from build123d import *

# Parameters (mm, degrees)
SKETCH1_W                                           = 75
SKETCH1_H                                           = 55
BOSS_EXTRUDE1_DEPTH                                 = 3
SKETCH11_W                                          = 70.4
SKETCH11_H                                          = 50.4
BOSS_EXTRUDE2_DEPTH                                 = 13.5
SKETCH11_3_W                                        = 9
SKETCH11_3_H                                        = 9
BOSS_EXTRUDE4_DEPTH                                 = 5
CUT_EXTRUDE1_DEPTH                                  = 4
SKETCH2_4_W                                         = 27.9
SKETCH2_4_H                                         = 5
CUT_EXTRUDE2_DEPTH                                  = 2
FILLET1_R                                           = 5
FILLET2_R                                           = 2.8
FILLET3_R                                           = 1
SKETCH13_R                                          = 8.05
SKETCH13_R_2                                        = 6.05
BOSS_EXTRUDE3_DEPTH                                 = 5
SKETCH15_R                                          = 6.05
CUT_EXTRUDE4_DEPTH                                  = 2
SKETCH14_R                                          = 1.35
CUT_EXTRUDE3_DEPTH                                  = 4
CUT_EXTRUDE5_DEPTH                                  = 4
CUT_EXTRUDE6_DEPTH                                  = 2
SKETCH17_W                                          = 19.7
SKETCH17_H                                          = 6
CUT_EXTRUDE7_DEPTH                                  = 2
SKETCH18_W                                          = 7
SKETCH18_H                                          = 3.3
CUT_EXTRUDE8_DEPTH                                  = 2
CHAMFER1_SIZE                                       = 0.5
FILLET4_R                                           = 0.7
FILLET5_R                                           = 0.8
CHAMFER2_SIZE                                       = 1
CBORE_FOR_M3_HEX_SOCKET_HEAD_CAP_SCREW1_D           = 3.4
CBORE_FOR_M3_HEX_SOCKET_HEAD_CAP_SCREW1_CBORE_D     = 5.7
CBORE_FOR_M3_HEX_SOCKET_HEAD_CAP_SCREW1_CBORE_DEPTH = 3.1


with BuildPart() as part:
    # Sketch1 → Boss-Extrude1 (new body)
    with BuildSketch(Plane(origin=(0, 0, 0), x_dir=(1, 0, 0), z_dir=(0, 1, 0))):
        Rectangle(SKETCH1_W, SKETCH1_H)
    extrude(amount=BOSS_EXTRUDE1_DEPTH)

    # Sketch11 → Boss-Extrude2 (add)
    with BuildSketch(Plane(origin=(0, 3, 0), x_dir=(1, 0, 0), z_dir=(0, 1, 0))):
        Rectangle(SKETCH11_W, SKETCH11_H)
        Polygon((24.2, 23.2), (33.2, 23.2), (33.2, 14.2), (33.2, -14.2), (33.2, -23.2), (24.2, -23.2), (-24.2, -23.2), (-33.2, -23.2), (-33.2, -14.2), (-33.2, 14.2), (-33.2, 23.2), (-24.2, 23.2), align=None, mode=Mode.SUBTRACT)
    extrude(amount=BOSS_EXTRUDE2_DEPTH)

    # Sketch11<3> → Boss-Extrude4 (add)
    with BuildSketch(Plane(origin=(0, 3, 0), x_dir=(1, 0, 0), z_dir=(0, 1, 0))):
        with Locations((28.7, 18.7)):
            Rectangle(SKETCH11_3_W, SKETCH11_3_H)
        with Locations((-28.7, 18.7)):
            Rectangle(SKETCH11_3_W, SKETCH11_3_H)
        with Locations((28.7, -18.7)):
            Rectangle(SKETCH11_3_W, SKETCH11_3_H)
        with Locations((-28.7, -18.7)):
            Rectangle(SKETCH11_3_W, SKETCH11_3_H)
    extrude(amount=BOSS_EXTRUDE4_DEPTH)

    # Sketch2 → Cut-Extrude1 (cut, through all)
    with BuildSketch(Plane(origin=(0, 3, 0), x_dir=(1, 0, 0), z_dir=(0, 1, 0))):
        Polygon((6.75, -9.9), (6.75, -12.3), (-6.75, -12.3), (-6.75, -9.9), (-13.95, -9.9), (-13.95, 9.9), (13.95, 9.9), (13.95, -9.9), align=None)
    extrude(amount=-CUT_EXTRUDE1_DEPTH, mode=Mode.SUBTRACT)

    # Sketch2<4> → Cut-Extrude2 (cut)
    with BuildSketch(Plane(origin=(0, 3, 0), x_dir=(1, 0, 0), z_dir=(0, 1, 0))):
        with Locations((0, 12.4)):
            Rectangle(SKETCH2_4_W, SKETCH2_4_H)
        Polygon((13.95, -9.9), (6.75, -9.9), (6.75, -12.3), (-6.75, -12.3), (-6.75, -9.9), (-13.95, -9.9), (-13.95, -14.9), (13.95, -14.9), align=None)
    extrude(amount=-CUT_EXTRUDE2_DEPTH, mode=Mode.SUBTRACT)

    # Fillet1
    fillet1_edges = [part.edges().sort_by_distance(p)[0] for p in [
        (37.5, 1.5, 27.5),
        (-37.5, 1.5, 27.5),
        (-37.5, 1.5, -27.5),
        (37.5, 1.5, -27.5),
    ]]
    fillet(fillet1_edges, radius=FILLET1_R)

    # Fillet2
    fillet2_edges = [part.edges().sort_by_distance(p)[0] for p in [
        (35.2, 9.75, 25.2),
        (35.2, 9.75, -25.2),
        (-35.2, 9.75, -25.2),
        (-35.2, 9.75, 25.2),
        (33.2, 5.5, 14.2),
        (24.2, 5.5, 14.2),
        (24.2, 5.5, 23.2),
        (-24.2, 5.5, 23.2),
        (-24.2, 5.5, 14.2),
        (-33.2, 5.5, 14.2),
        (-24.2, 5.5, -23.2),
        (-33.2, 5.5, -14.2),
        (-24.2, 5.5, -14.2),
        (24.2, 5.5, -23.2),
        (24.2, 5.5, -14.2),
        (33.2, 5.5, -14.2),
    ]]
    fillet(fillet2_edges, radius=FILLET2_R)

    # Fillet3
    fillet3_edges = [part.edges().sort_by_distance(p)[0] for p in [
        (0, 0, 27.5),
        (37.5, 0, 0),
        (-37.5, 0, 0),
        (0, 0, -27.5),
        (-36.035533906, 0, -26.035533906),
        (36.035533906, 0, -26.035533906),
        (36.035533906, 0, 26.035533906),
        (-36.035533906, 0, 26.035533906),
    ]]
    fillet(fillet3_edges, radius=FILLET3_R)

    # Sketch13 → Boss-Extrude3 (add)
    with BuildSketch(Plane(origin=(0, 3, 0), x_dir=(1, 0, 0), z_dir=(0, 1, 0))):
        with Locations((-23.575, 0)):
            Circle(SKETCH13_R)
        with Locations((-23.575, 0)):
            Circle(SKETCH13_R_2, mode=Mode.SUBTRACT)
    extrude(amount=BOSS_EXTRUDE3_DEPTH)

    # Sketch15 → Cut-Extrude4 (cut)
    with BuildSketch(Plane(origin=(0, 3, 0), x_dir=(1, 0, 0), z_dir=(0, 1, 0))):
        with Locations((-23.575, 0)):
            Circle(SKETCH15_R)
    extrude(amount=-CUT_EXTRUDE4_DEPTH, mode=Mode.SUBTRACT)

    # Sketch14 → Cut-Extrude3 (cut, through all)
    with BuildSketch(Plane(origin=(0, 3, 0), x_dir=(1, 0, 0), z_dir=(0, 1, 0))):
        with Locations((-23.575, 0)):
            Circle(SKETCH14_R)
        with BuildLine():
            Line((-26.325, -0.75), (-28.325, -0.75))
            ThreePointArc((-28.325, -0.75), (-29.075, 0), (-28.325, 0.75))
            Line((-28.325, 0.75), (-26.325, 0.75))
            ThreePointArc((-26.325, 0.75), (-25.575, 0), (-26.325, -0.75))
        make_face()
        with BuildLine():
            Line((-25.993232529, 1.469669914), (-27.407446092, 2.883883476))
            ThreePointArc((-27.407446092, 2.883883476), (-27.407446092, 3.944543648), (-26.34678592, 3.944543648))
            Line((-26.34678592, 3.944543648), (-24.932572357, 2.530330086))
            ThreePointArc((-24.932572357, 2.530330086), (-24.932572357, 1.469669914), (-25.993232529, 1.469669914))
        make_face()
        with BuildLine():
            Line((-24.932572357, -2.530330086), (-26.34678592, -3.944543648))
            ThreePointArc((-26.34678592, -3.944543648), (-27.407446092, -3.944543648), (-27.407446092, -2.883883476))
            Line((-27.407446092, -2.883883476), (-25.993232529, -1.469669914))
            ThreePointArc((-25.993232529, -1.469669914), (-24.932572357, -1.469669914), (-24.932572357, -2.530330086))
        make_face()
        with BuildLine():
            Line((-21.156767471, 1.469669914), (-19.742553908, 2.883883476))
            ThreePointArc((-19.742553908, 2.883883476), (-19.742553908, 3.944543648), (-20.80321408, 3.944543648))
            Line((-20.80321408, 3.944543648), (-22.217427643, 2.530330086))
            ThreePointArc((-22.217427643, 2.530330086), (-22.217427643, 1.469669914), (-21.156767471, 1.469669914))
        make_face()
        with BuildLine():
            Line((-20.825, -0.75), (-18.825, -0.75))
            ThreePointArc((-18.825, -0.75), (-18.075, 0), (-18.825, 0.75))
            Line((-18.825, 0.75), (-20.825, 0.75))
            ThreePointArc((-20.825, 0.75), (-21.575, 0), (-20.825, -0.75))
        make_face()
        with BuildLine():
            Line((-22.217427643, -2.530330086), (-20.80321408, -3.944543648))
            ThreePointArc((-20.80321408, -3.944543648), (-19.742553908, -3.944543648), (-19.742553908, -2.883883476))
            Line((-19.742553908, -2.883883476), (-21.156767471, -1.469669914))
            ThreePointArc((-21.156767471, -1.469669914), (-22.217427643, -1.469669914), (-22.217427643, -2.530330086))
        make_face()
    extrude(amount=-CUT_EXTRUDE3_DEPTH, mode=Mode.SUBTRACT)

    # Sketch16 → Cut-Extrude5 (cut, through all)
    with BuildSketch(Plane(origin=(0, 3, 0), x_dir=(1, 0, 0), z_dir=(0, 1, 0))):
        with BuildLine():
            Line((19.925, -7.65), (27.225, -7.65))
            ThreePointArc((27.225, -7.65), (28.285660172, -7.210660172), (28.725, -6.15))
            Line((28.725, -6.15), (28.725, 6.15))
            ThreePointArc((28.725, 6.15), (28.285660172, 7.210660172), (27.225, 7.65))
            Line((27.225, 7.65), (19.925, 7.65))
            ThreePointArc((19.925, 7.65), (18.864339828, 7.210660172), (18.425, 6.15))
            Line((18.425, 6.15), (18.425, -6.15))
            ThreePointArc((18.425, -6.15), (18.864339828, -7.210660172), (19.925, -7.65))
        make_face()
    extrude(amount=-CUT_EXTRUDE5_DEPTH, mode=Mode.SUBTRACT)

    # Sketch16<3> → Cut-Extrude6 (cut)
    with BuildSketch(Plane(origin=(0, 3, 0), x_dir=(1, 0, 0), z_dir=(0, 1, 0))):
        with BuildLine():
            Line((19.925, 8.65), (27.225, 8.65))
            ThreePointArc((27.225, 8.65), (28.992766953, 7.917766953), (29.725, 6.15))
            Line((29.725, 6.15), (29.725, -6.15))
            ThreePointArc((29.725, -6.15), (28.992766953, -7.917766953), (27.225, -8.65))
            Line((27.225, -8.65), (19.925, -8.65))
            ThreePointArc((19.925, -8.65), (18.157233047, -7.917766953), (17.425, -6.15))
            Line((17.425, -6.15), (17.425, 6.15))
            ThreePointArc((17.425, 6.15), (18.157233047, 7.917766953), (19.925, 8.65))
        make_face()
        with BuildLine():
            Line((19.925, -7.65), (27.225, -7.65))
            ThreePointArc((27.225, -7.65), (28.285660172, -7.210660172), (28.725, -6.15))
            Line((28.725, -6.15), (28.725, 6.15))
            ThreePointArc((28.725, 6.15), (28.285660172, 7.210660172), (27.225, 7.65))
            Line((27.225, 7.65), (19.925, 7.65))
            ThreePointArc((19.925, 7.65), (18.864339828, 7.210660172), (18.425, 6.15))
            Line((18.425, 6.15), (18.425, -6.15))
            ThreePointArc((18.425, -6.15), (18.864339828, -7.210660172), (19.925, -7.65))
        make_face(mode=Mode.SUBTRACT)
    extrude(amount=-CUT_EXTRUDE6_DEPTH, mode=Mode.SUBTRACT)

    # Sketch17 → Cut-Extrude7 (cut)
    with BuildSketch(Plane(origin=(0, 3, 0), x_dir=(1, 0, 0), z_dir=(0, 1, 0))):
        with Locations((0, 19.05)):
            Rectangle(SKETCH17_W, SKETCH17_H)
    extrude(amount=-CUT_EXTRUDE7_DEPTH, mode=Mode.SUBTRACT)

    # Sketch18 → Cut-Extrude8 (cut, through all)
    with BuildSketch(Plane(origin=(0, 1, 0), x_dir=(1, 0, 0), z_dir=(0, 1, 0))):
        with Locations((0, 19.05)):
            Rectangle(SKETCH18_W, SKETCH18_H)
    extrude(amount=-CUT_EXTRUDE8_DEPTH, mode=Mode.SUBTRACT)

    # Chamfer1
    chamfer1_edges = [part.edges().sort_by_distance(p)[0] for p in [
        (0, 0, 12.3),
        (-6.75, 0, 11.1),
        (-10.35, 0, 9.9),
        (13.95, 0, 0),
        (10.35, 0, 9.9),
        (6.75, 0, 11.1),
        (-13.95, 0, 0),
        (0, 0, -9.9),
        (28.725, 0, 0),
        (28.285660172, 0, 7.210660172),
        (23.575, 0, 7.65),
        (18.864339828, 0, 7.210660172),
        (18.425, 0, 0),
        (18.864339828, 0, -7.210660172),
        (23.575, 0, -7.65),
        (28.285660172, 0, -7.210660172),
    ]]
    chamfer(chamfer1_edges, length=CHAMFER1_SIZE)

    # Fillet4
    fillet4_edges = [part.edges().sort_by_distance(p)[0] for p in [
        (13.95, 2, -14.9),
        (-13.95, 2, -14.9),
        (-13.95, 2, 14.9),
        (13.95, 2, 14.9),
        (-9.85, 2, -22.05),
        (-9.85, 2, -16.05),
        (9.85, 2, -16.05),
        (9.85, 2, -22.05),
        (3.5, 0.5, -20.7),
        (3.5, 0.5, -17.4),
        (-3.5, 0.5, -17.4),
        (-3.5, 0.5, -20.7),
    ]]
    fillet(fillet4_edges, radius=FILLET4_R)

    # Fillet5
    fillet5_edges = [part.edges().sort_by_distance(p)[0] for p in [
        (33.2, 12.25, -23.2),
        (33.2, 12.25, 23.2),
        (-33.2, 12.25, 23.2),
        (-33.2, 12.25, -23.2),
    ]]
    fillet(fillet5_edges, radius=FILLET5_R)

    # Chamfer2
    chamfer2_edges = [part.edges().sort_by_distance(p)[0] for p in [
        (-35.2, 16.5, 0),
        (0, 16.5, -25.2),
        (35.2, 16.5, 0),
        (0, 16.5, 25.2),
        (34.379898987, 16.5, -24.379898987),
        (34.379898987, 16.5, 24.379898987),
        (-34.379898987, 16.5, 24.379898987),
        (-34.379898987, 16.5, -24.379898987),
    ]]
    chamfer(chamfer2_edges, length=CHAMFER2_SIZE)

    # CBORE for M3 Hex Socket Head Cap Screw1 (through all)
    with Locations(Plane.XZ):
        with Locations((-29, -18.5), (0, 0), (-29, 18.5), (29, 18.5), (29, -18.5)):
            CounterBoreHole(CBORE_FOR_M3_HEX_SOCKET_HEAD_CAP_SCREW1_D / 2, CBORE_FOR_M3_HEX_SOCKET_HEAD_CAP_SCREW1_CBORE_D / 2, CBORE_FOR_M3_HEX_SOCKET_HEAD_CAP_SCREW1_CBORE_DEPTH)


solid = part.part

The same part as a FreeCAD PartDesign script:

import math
import FreeCAD as App
import Part
import Sketcher
from FreeCAD import Vector


def edges_at(feature, points):
    """Names of the edges that pass closest to the given points."""
    edges = feature.Shape.Edges
    near = lambda p: min(range(len(edges)), key=lambda i: edges[i].distToShape(Part.Vertex(*p))[0])
    return sorted({f"Edge{near(p) + 1}" for p in points})

doc = App.newDocument("Part")
body = doc.addObject("PartDesign::Body", "Body")

# Sketch on XZ plane
sketch1 = body.newObject("Sketcher::SketchObject", "Sketch")
sketch1.AttachmentSupport = (doc.getObject("XZ_Plane"), [""])
sketch1.MapMode = "FlatFace"
sketch1.addGeometry([
    Part.LineSegment(Vector(-38, -28, 0), Vector(-38, 28, 0)),
    Part.LineSegment(Vector(-38, 28, 0), Vector(38, 28, 0)),
    Part.LineSegment(Vector(38, 28, 0), Vector(38, -28, 0)),
    Part.LineSegment(Vector(38, -28, 0), Vector(-38, -28, 0)),
], False)
sketch1.addConstraint([
    Sketcher.Constraint("Coincident", 0, 2, 1, 1),
    Sketcher.Constraint("Coincident", 1, 2, 2, 1),
    Sketcher.Constraint("Coincident", 2, 2, 3, 1),
    Sketcher.Constraint("Coincident", 3, 2, 0, 1),
    Sketcher.Constraint("Vertical", 0),
    Sketcher.Constraint("Horizontal", 1),
    Sketcher.Constraint("Vertical", 2),
    Sketcher.Constraint("Horizontal", 3),
    Sketcher.Constraint("Symmetric", 0, 2, 2, 2, -1, 1),
    Sketcher.Constraint("DistanceX", 1, 1, 1, 2, 75.0),
    Sketcher.Constraint("DistanceY", 0, 1, 0, 2, 55.0),
])
pad1 = body.newObject("PartDesign::Pad", "Pad")
pad1.Profile = sketch1
pad1.Length = 3
pad1.Reversed = True

# Sketch on XZ plane
sketch2 = body.newObject("Sketcher::SketchObject", "Sketch001")
sketch2.AttachmentSupport = (doc.getObject("XZ_Plane"), [""])
sketch2.MapMode = "FlatFace"
sketch2.AttachmentOffset = App.Placement(Vector(0, 0, -3), App.Rotation())
sketch2.addGeometry([
    Part.LineSegment(Vector(-35, -25, 0), Vector(-35, 25, 0)),  # 0
    Part.LineSegment(Vector(-35, 25, 0), Vector(35, 25, 0)),  # 1
    Part.LineSegment(Vector(35, 25, 0), Vector(35, -25, 0)),  # 2
    Part.LineSegment(Vector(35, -25, 0), Vector(-35, -25, 0)),  # 3
    Part.LineSegment(Vector(-33, -23, 0), Vector(33, -23, 0)),  # 4
    Part.LineSegment(Vector(33, -23, 0), Vector(33, 23, 0)),  # 5
    Part.LineSegment(Vector(33, 23, 0), Vector(-33, 23, 0)),  # 6
    Part.LineSegment(Vector(-33, 23, 0), Vector(-33, -23, 0)),  # 7
], False)
sketch2.addConstraint([
    Sketcher.Constraint("Coincident", 0, 2, 1, 1),
    Sketcher.Constraint("Coincident", 1, 2, 2, 1),
    Sketcher.Constraint("Coincident", 2, 2, 3, 1),
    Sketcher.Constraint("Coincident", 3, 2, 0, 1),
    Sketcher.Constraint("Coincident", 4, 2, 5, 1),
    Sketcher.Constraint("Coincident", 5, 2, 6, 1),
    Sketcher.Constraint("Coincident", 6, 2, 7, 1),
    Sketcher.Constraint("Coincident", 7, 2, 4, 1),
    Sketcher.Constraint("Vertical", 0),
    Sketcher.Constraint("Horizontal", 1),
    Sketcher.Constraint("Vertical", 2),
    Sketcher.Constraint("Horizontal", 3),
    Sketcher.Constraint("Horizontal", 4),
    Sketcher.Constraint("Vertical", 5),
    Sketcher.Constraint("Horizontal", 6),
    Sketcher.Constraint("Vertical", 7),
    Sketcher.Constraint("Symmetric", 0, 2, 2, 2, -1, 1),
    Sketcher.Constraint("Symmetric", 4, 2, 6, 2, -1, 1),
    Sketcher.Constraint("DistanceX", 1, 1, 1, 2, 70.4),
    Sketcher.Constraint("DistanceX", 4, 1, 4, 2, 66.4),
    Sketcher.Constraint("DistanceY", 0, 1, 0, 2, 50.4),
    Sketcher.Constraint("DistanceY", 5, 1, 5, 2, 46.4),
])
pad2 = body.newObject("PartDesign::Pad", "Pad001")
pad2.Profile = sketch2
pad2.Length = 13.5
pad2.Reversed = True

# Sketch on XZ plane
sketch3 = body.newObject("Sketcher::SketchObject", "Sketch002")
sketch3.AttachmentSupport = (doc.getObject("XZ_Plane"), [""])
sketch3.MapMode = "FlatFace"
sketch3.AttachmentOffset = App.Placement(Vector(0, 0, -3), App.Rotation())
sketch3.addGeometry([
    Part.LineSegment(Vector(24, -23, 0), Vector(24, -14, 0)),  # 0
    Part.LineSegment(Vector(24, -14, 0), Vector(33, -14, 0)),  # 1
    Part.LineSegment(Vector(33, -14, 0), Vector(33, -23, 0)),  # 2
    Part.LineSegment(Vector(33, -23, 0), Vector(24, -23, 0)),  # 3
    Part.LineSegment(Vector(-33, -23, 0), Vector(-33, -14, 0)),  # 4
    Part.LineSegment(Vector(-33, -14, 0), Vector(-24, -14, 0)),  # 5
    Part.LineSegment(Vector(-24, -14, 0), Vector(-24, -23, 0)),  # 6
    Part.LineSegment(Vector(-24, -23, 0), Vector(-33, -23, 0)),  # 7
    Part.LineSegment(Vector(24, 14, 0), Vector(24, 23, 0)),  # 8
    Part.LineSegment(Vector(24, 23, 0), Vector(33, 23, 0)),  # 9
    Part.LineSegment(Vector(33, 23, 0), Vector(33, 14, 0)),  # 10
    Part.LineSegment(Vector(33, 14, 0), Vector(24, 14, 0)),  # 11
    Part.LineSegment(Vector(-33, 14, 0), Vector(-33, 23, 0)),  # 12
    Part.LineSegment(Vector(-33, 23, 0), Vector(-24, 23, 0)),  # 13
    Part.LineSegment(Vector(-24, 23, 0), Vector(-24, 14, 0)),  # 14
    Part.LineSegment(Vector(-24, 14, 0), Vector(-33, 14, 0)),  # 15
], False)
sketch3.addConstraint([
    Sketcher.Constraint("Coincident", 0, 2, 1, 1),
    Sketcher.Constraint("Coincident", 1, 2, 2, 1),
    Sketcher.Constraint("Coincident", 2, 2, 3, 1),
    Sketcher.Constraint("Coincident", 3, 2, 0, 1),
    Sketcher.Constraint("Coincident", 4, 2, 5, 1),
    Sketcher.Constraint("Coincident", 5, 2, 6, 1),
    Sketcher.Constraint("Coincident", 6, 2, 7, 1),
    Sketcher.Constraint("Coincident", 7, 2, 4, 1),
    Sketcher.Constraint("Coincident", 8, 2, 9, 1),
    Sketcher.Constraint("Coincident", 9, 2, 10, 1),
    Sketcher.Constraint("Coincident", 10, 2, 11, 1),
    Sketcher.Constraint("Coincident", 11, 2, 8, 1),
    Sketcher.Constraint("Coincident", 12, 2, 13, 1),
    Sketcher.Constraint("Coincident", 13, 2, 14, 1),
    Sketcher.Constraint("Coincident", 14, 2, 15, 1),
    Sketcher.Constraint("Coincident", 15, 2, 12, 1),
    Sketcher.Constraint("Vertical", 0),
    Sketcher.Constraint("Horizontal", 1),
    Sketcher.Constraint("Vertical", 2),
    Sketcher.Constraint("Horizontal", 3),
    Sketcher.Constraint("Vertical", 4),
    Sketcher.Constraint("Horizontal", 5),
    Sketcher.Constraint("Vertical", 6),
    Sketcher.Constraint("Horizontal", 7),
    Sketcher.Constraint("Vertical", 8),
    Sketcher.Constraint("Horizontal", 9),
    Sketcher.Constraint("Vertical", 10),
    Sketcher.Constraint("Horizontal", 11),
    Sketcher.Constraint("Vertical", 12),
    Sketcher.Constraint("Horizontal", 13),
    Sketcher.Constraint("Vertical", 14),
    Sketcher.Constraint("Horizontal", 15),
    Sketcher.Constraint("Symmetric", 6, 2, 8, 2, -1, 1),
    Sketcher.Constraint("Symmetric", 4, 2, 10, 2, -1, 1),
    Sketcher.Constraint("Symmetric", 2, 2, 12, 2, -1, 1),
    Sketcher.Constraint("Symmetric", 0, 2, 14, 2, -1, 1),
    Sketcher.Constraint("Symmetric", 1, 2, 4, 2, -2),
    Sketcher.Constraint("Symmetric", 3, 2, 6, 2, -2),
    Sketcher.Constraint("Equal", 15, 0),
    Sketcher.Constraint("DistanceX", 1, 1, 1, 2, 9.0),
    Sketcher.Constraint("DistanceX", -1, 1, 0, 2, 24.2),
    Sketcher.Constraint("DistanceY", 0, 2, -1, 1, 14.2),
])
pad3 = body.newObject("PartDesign::Pad", "Pad002")
pad3.Profile = sketch3
pad3.Length = 5
pad3.Reversed = True

# Sketch on XZ plane
sketch4 = body.newObject("Sketcher::SketchObject", "Sketch003")
sketch4.AttachmentSupport = (doc.getObject("XZ_Plane"), [""])
sketch4.MapMode = "FlatFace"
sketch4.AttachmentOffset = App.Placement(Vector(0, 0, -3), App.Rotation())
sketch4.addGeometry([
    Part.LineSegment(Vector(6.8, 12.3, 0), Vector(6.8, 9.9, 0)),  # 0
    Part.LineSegment(Vector(6.8, 9.9, 0), Vector(13.9, 9.9, 0)),  # 1
    Part.LineSegment(Vector(13.9, 9.9, 0), Vector(13.9, -9.9, 0)),  # 2
    Part.LineSegment(Vector(13.9, -9.9, 0), Vector(-13.9, -9.9, 0)),  # 3
    Part.LineSegment(Vector(-13.9, -9.9, 0), Vector(-13.9, 9.9, 0)),  # 4
    Part.LineSegment(Vector(-13.9, 9.9, 0), Vector(-6.8, 9.9, 0)),  # 5
    Part.LineSegment(Vector(-6.8, 9.9, 0), Vector(-6.8, 12.3, 0)),  # 6
    Part.LineSegment(Vector(-6.8, 12.3, 0), Vector(6.8, 12.3, 0)),  # 7
], False)
sketch4.addConstraint([
    Sketcher.Constraint("Coincident", 0, 2, 1, 1),
    Sketcher.Constraint("Coincident", 1, 2, 2, 1),
    Sketcher.Constraint("Coincident", 2, 2, 3, 1),
    Sketcher.Constraint("Coincident", 3, 2, 4, 1),
    Sketcher.Constraint("Coincident", 4, 2, 5, 1),
    Sketcher.Constraint("Coincident", 5, 2, 6, 1),
    Sketcher.Constraint("Coincident", 6, 2, 7, 1),
    Sketcher.Constraint("Coincident", 7, 2, 0, 1),
    Sketcher.Constraint("Vertical", 0),
    Sketcher.Constraint("Horizontal", 1),
    Sketcher.Constraint("Vertical", 2),
    Sketcher.Constraint("Horizontal", 3),
    Sketcher.Constraint("Vertical", 4),
    Sketcher.Constraint("Horizontal", 5),
    Sketcher.Constraint("Vertical", 6),
    Sketcher.Constraint("Horizontal", 7),
    Sketcher.Constraint("Symmetric", 1, 2, 3, 2, -1, 1),
    Sketcher.Constraint("Symmetric", 0, 2, 5, 2, -2),
    Sketcher.Constraint("DistanceX", 1, 1, 1, 2, 7.2),
    Sketcher.Constraint("DistanceX", 3, 2, 3, 1, 27.9),
    Sketcher.Constraint("DistanceY", 0, 2, 0, 1, 2.4),
    Sketcher.Constraint("DistanceY", 2, 2, 2, 1, 19.8),
])
pocket1 = body.newObject("PartDesign::Pocket", "Pocket")
pocket1.Profile = sketch4
pocket1.Type = "ThroughAll"
pocket1.Reversed = True

# Sketch on XZ plane
sketch5 = body.newObject("Sketcher::SketchObject", "Sketch004")
sketch5.AttachmentSupport = (doc.getObject("XZ_Plane"), [""])
sketch5.MapMode = "FlatFace"
sketch5.AttachmentOffset = App.Placement(Vector(0, 0, -3), App.Rotation())
sketch5.addGeometry([
    Part.LineSegment(Vector(-13.9, -14.9, 0), Vector(-13.9, -9.9, 0)),  # 0
    Part.LineSegment(Vector(-13.9, -9.9, 0), Vector(13.9, -9.9, 0)),  # 1
    Part.LineSegment(Vector(13.9, -9.9, 0), Vector(13.9, -14.9, 0)),  # 2
    Part.LineSegment(Vector(13.9, -14.9, 0), Vector(-13.9, -14.9, 0)),  # 3
    Part.LineSegment(Vector(13.9, 9.9, 0), Vector(6.8, 9.9, 0)),  # 4
    Part.LineSegment(Vector(6.8, 9.9, 0), Vector(6.8, 12.3, 0)),  # 5
    Part.LineSegment(Vector(6.8, 12.3, 0), Vector(-6.8, 12.3, 0)),  # 6
    Part.LineSegment(Vector(-6.8, 12.3, 0), Vector(-6.8, 9.9, 0)),  # 7
    Part.LineSegment(Vector(-6.8, 9.9, 0), Vector(-13.9, 9.9, 0)),  # 8
    Part.LineSegment(Vector(-13.9, 9.9, 0), Vector(-13.9, 14.9, 0)),  # 9
    Part.LineSegment(Vector(-13.9, 14.9, 0), Vector(13.9, 14.9, 0)),  # 10
    Part.LineSegment(Vector(13.9, 14.9, 0), Vector(13.9, 9.9, 0)),  # 11
], False)
sketch5.addConstraint([
    Sketcher.Constraint("Coincident", 0, 2, 1, 1),
    Sketcher.Constraint("Coincident", 1, 2, 2, 1),
    Sketcher.Constraint("Coincident", 2, 2, 3, 1),
    Sketcher.Constraint("Coincident", 3, 2, 0, 1),
    Sketcher.Constraint("Coincident", 4, 2, 5, 1),
    Sketcher.Constraint("Coincident", 5, 2, 6, 1),
    Sketcher.Constraint("Coincident", 6, 2, 7, 1),
    Sketcher.Constraint("Coincident", 7, 2, 8, 1),
    Sketcher.Constraint("Coincident", 8, 2, 9, 1),
    Sketcher.Constraint("Coincident", 9, 2, 10, 1),
    Sketcher.Constraint("Coincident", 10, 2, 11, 1),
    Sketcher.Constraint("Coincident", 11, 2, 4, 1),
    Sketcher.Constraint("Vertical", 0),
    Sketcher.Constraint("Horizontal", 1),
    Sketcher.Constraint("Vertical", 2),
    Sketcher.Constraint("Horizontal", 3),
    Sketcher.Constraint("Horizontal", 4),
    Sketcher.Constraint("Vertical", 5),
    Sketcher.Constraint("Horizontal", 6),
    Sketcher.Constraint("Vertical", 7),
    Sketcher.Constraint("Horizontal", 8),
    Sketcher.Constraint("Vertical", 9),
    Sketcher.Constraint("Horizontal", 10),
    Sketcher.Constraint("Vertical", 11),
    Sketcher.Constraint("Symmetric", 1, 2, 8, 2, -1, 1),
    Sketcher.Constraint("Symmetric", 3, 2, 10, 2, -1, 1),
    Sketcher.Constraint("Symmetric", 4, 2, 7, 2, -2),
    Sketcher.Constraint("Vertical", 3, 2, 8, 2),
    Sketcher.Constraint("DistanceY", 0, 1, 0, 2, 5.0),
    Sketcher.Constraint("DistanceX", 1, 1, 1, 2, 27.9),
    Sketcher.Constraint("DistanceX", 4, 2, 4, 1, 7.2),
    Sketcher.Constraint("DistanceY", 5, 1, 5, 2, 2.4),
    Sketcher.Constraint("DistanceY", 0, 2, -1, 1, 9.9),
])
pocket2 = body.newObject("PartDesign::Pocket", "Pocket001")
pocket2.Profile = sketch5
pocket2.Length = 2
pocket2.Reversed = True
doc.recompute()

fillet = body.newObject("PartDesign::Fillet", "Fillet")
fillet.Base = (pocket2, edges_at(pocket2, [
    (37.5, 1.5, 27.5),
    (-37.5, 1.5, 27.5),
    (-37.5, 1.5, -27.5),
    (37.5, 1.5, -27.5),
]))
fillet.Radius = 5
doc.recompute()

fillet2 = body.newObject("PartDesign::Fillet", "Fillet001")
fillet2.Base = (fillet, edges_at(fillet, [
    (35.2, 9.75, 25.2),
    (35.2, 9.75, -25.2),
    (-35.2, 9.75, -25.2),
    (-35.2, 9.75, 25.2),
    (33.2, 5.5, 14.2),
    (24.2, 5.5, 14.2),
    (24.2, 5.5, 23.2),
    (-24.2, 5.5, 23.2),
    (-24.2, 5.5, 14.2),
    (-33.2, 5.5, 14.2),
    (-24.2, 5.5, -23.2),
    (-33.2, 5.5, -14.2),
    (-24.2, 5.5, -14.2),
    (24.2, 5.5, -23.2),
    (24.2, 5.5, -14.2),
    (33.2, 5.5, -14.2),
]))
fillet2.Radius = 2.8
doc.recompute()

fillet3 = body.newObject("PartDesign::Fillet", "Fillet002")
fillet3.Base = (fillet2, edges_at(fillet2, [
    (0, 0, 27.5),
    (37.5, 0, 0),
    (-37.5, 0, 0),
    (0, 0, -27.5),
    (-36.036, 0, -26.036),
    (36.036, 0, -26.036),
    (36.036, 0, 26.036),
    (-36.036, 0, 26.036),
]))
fillet3.Radius = 1

# Sketch on XZ plane
sketch6 = body.newObject("Sketcher::SketchObject", "Sketch005")
sketch6.AttachmentSupport = (doc.getObject("XZ_Plane"), [""])
sketch6.MapMode = "FlatFace"
sketch6.AttachmentOffset = App.Placement(Vector(0, 0, -3), App.Rotation())
sketch6.addGeometry([
    Part.Circle(Vector(-24, 0, 0), Vector(0, 0, 1), 8),
    Part.Circle(Vector(-24, 0, 0), Vector(0, 0, 1), 6),
], False)
sketch6.addConstraint([
    Sketcher.Constraint("Coincident", 1, 3, 0, 3),
    Sketcher.Constraint("PointOnObject", 0, 3, -1),
    Sketcher.Constraint("Diameter", 0, 16.1),
    Sketcher.Constraint("Diameter", 1, 12.1),
    Sketcher.Constraint("DistanceX", 0, 3, -1, 1, 23.575),
])
pad4 = body.newObject("PartDesign::Pad", "Pad003")
pad4.Profile = sketch6
pad4.Length = 5
pad4.Reversed = True

# Sketch on XZ plane
sketch7 = body.newObject("Sketcher::SketchObject", "Sketch006")
sketch7.AttachmentSupport = (doc.getObject("XZ_Plane"), [""])
sketch7.MapMode = "FlatFace"
sketch7.AttachmentOffset = App.Placement(Vector(0, 0, -3), App.Rotation())
sketch7.addGeometry(Part.Circle(Vector(-24, 0, 0), Vector(0, 0, 1), 6), False)
sketch7.addConstraint([
    Sketcher.Constraint("PointOnObject", 0, 3, -1),
    Sketcher.Constraint("Diameter", 0, 12.1),
    Sketcher.Constraint("DistanceX", 0, 3, -1, 1, 23.575),
])
pocket3 = body.newObject("PartDesign::Pocket", "Pocket002")
pocket3.Profile = sketch7
pocket3.Length = 2
pocket3.Reversed = True

# Sketch on XZ plane
sketch8 = body.newObject("Sketcher::SketchObject", "Sketch007")
sketch8.AttachmentSupport = (doc.getObject("XZ_Plane"), [""])
sketch8.MapMode = "FlatFace"
sketch8.AttachmentOffset = App.Placement(Vector(0, 0, -3), App.Rotation())
sketch8.addGeometry([
    Part.Circle(Vector(-23.6, 0, 0), Vector(0, 0, 1), 1.4),  # 0
    Part.LineSegment(Vector(-28.3, 0.8, 0), Vector(-26.3, 0.8, 0)),  # 1
    Part.ArcOfCircle(Part.Circle(Vector(-26.3, 0, 0), Vector(0, 0, 1), 0.8), math.radians(-90), math.radians(90)),  # 2
    Part.LineSegment(Vector(-26.3, -0.8, 0), Vector(-28.3, -0.8, 0)),  # 3
    Part.ArcOfCircle(Part.Circle(Vector(-28.3, 0, 0), Vector(0, 0, 1), 0.8), math.radians(90), math.radians(270)),  # 4
    Part.LineSegment(Vector(-27.4, -2.9, 0), Vector(-26, -1.5, 0)),  # 5
    Part.ArcOfCircle(Part.Circle(Vector(-25.5, -2, 0), Vector(0, 0, 1), 0.8), math.radians(-45), math.radians(135)),  # 6
    Part.LineSegment(Vector(-24.9, -2.5, 0), Vector(-26.3, -3.9, 0)),  # 7
    Part.ArcOfCircle(Part.Circle(Vector(-26.9, -3.4, 0), Vector(0, 0, 1), 0.8), math.radians(135), math.radians(315)),  # 8
    Part.LineSegment(Vector(-26.3, 3.9, 0), Vector(-24.9, 2.5, 0)),  # 9
    Part.ArcOfCircle(Part.Circle(Vector(-25.5, 2, 0), Vector(0, 0, 1), 0.8), math.radians(-135), math.radians(45)),  # 10
    Part.LineSegment(Vector(-26, 1.5, 0), Vector(-27.4, 2.9, 0)),  # 11
    Part.ArcOfCircle(Part.Circle(Vector(-26.9, 3.4, 0), Vector(0, 0, 1), 0.8), math.radians(45), math.radians(225)),  # 12
    Part.LineSegment(Vector(-21.2, -1.5, 0), Vector(-19.7, -2.9, 0)),  # 13
    Part.ArcOfCircle(Part.Circle(Vector(-20.3, -3.4, 0), Vector(0, 0, 1), 0.8), math.radians(-135), math.radians(45)),  # 14
    Part.LineSegment(Vector(-20.8, -3.9, 0), Vector(-22.2, -2.5, 0)),  # 15
    Part.ArcOfCircle(Part.Circle(Vector(-21.7, -2, 0), Vector(0, 0, 1), 0.8), math.radians(45), math.radians(225)),  # 16
    Part.LineSegment(Vector(-20.8, 0.8, 0), Vector(-18.8, 0.8, 0)),  # 17
    Part.ArcOfCircle(Part.Circle(Vector(-18.8, 0, 0), Vector(0, 0, 1), 0.8), math.radians(-90), math.radians(90)),  # 18
    Part.LineSegment(Vector(-18.8, -0.8, 0), Vector(-20.8, -0.8, 0)),  # 19
    Part.ArcOfCircle(Part.Circle(Vector(-20.8, 0, 0), Vector(0, 0, 1), 0.8), math.radians(90), math.radians(270)),  # 20
    Part.LineSegment(Vector(-22.2, 2.5, 0), Vector(-20.8, 3.9, 0)),  # 21
    Part.ArcOfCircle(Part.Circle(Vector(-20.3, 3.4, 0), Vector(0, 0, 1), 0.8), math.radians(-45), math.radians(135)),  # 22
    Part.LineSegment(Vector(-19.7, 2.9, 0), Vector(-21.2, 1.5, 0)),  # 23
    Part.ArcOfCircle(Part.Circle(Vector(-21.7, 2, 0), Vector(0, 0, 1), 0.8), math.radians(135), math.radians(315)),  # 24
], False)
sketch8.addConstraint([
    Sketcher.Constraint("Tangent", 1, 2, 2, 2),
    Sketcher.Constraint("Tangent", 2, 1, 3, 1),
    Sketcher.Constraint("Tangent", 3, 2, 4, 2),
    Sketcher.Constraint("Tangent", 4, 1, 1, 1),
    Sketcher.Constraint("Tangent", 5, 2, 6, 2),
    Sketcher.Constraint("Tangent", 6, 1, 7, 1),
    Sketcher.Constraint("Tangent", 7, 2, 8, 2),
    Sketcher.Constraint("Tangent", 8, 1, 5, 1),
    Sketcher.Constraint("Tangent", 9, 2, 10, 2),
    Sketcher.Constraint("Tangent", 10, 1, 11, 1),
    Sketcher.Constraint("Tangent", 11, 2, 12, 2),
    Sketcher.Constraint("Tangent", 12, 1, 9, 1),
    Sketcher.Constraint("Tangent", 13, 2, 14, 2),
    Sketcher.Constraint("Tangent", 14, 1, 15, 1),
    Sketcher.Constraint("Tangent", 15, 2, 16, 2),
    Sketcher.Constraint("Tangent", 16, 1, 13, 1),
    Sketcher.Constraint("Tangent", 17, 2, 18, 2),
    Sketcher.Constraint("Tangent", 18, 1, 19, 1),
    Sketcher.Constraint("Tangent", 19, 2, 20, 2),
    Sketcher.Constraint("Tangent", 20, 1, 17, 1),
    Sketcher.Constraint("Tangent", 21, 2, 22, 2),
    Sketcher.Constraint("Tangent", 22, 1, 23, 1),
    Sketcher.Constraint("Tangent", 23, 2, 24, 2),
    Sketcher.Constraint("Tangent", 24, 1, 21, 1),
    Sketcher.Constraint("Horizontal", 1),
    Sketcher.Constraint("Horizontal", 3),
    Sketcher.Constraint("Horizontal", 17),
    Sketcher.Constraint("Horizontal", 19),
    Sketcher.Constraint("Equal", 4, 6),
    Sketcher.Constraint("Equal", 6, 8),
    Sketcher.Constraint("Equal", 8, 10),
    Sketcher.Constraint("Equal", 10, 12),
    Sketcher.Constraint("Equal", 12, 14),
    Sketcher.Constraint("Equal", 14, 16),
    Sketcher.Constraint("Equal", 16, 18),
    Sketcher.Constraint("Equal", 20, 22),
    Sketcher.Constraint("Equal", 22, 24),
    Sketcher.Constraint("Symmetric", 6, 3, 10, 3, -1),
    Sketcher.Constraint("Symmetric", 8, 3, 12, 3, -1),
    Sketcher.Constraint("Symmetric", 14, 3, 22, 3, -1),
    Sketcher.Constraint("Symmetric", 16, 3, 24, 3, -1),
    Sketcher.Constraint("PointOnObject", 0, 3, -1),
    Sketcher.Constraint("PointOnObject", 2, 3, -1),
    Sketcher.Constraint("PointOnObject", 18, 3, -1),
    Sketcher.Constraint("Perpendicular", 7, 9),
    Sketcher.Constraint("Parallel", 11, 13),
    Sketcher.Constraint("Horizontal", 8, 3, 14, 3),
    Sketcher.Constraint("Horizontal", 6, 3, 16, 3),
    Sketcher.Constraint("Equal", 3, 17),
    Sketcher.Constraint("Diameter", 0, 2.7),
    Sketcher.Constraint("DistanceX", 1, 1, 1, 2, 2.0),
    Sketcher.Constraint("Radius", 2, 0.75),
    Sketcher.Constraint("Distance", 5, 2.0),
    Sketcher.Constraint("DistanceY", 6, 3, -1, 1, 2.0),
    Sketcher.Constraint("DistanceX", 2, 3, 0, 3, 2.75),
    Sketcher.Constraint("DistanceX", 0, 3, 18, 3, 4.75),
    Sketcher.Constraint("DistanceX", 0, 3, -1, 1, 23.575),
    Sketcher.Constraint("DistanceX", 6, 3, 14, 3, 5.190018),
    Sketcher.Constraint("DistanceX", 6, 3, -1, 1, 25.462902),
])
pocket4 = body.newObject("PartDesign::Pocket", "Pocket003")
pocket4.Profile = sketch8
pocket4.Type = "ThroughAll"
pocket4.Reversed = True

# Sketch on XZ plane
sketch9 = body.newObject("Sketcher::SketchObject", "Sketch008")
sketch9.AttachmentSupport = (doc.getObject("XZ_Plane"), [""])
sketch9.MapMode = "FlatFace"
sketch9.AttachmentOffset = App.Placement(Vector(0, 0, -3), App.Rotation())
sketch9.addGeometry([
    Part.LineSegment(Vector(19.9, 7.7, 0), Vector(27.2, 7.7, 0)),  # 0
    Part.ArcOfCircle(Part.Circle(Vector(27.2, 6.2, 0), Vector(0, 0, 1), 1.5), math.radians(0), math.radians(90)),  # 1
    Part.LineSegment(Vector(28.7, 6.2, 0), Vector(28.7, -6.2, 0)),  # 2
    Part.ArcOfCircle(Part.Circle(Vector(27.2, -6.2, 0), Vector(0, 0, 1), 1.5), math.radians(-90), math.radians(0)),  # 3
    Part.LineSegment(Vector(27.2, -7.7, 0), Vector(19.9, -7.7, 0)),  # 4
    Part.ArcOfCircle(Part.Circle(Vector(19.9, -6.2, 0), Vector(0, 0, 1), 1.5), math.radians(180), math.radians(270)),  # 5
    Part.LineSegment(Vector(18.4, -6.2, 0), Vector(18.4, 6.2, 0)),  # 6
    Part.ArcOfCircle(Part.Circle(Vector(19.9, 6.2, 0), Vector(0, 0, 1), 1.5), math.radians(90), math.radians(180)),  # 7
], False)
sketch9.addConstraint([
    Sketcher.Constraint("Tangent", 0, 2, 1, 2),
    Sketcher.Constraint("Tangent", 1, 1, 2, 1),
    Sketcher.Constraint("Tangent", 2, 2, 3, 2),
    Sketcher.Constraint("Tangent", 3, 1, 4, 1),
    Sketcher.Constraint("Tangent", 4, 2, 5, 2),
    Sketcher.Constraint("Tangent", 5, 1, 6, 1),
    Sketcher.Constraint("Tangent", 6, 2, 7, 2),
    Sketcher.Constraint("Tangent", 7, 1, 0, 1),
    Sketcher.Constraint("Horizontal", 0),
    Sketcher.Constraint("Vertical", 2),
    Sketcher.Constraint("Horizontal", 4),
    Sketcher.Constraint("Vertical", 6),
    Sketcher.Constraint("Equal", 1, 3),
    Sketcher.Constraint("Equal", 3, 5),
    Sketcher.Constraint("Equal", 5, 7),
    Sketcher.Constraint("Radius", 1, 1.5),
    Sketcher.Constraint("DistanceX", 0, 1, 0, 2, 7.3),
    Sketcher.Constraint("DistanceY", 2, 2, 2, 1, 12.3),
    Sketcher.Constraint("DistanceY", -1, 1, 1, 3, 6.15),
    Sketcher.Constraint("DistanceX", -1, 1, 1, 3, 27.225),
])
pocket5 = body.newObject("PartDesign::Pocket", "Pocket004")
pocket5.Profile = sketch9
pocket5.Type = "ThroughAll"
pocket5.Reversed = True

# Sketch on XZ plane
sketch10 = body.newObject("Sketcher::SketchObject", "Sketch009")
sketch10.AttachmentSupport = (doc.getObject("XZ_Plane"), [""])
sketch10.MapMode = "FlatFace"
sketch10.AttachmentOffset = App.Placement(Vector(0, 0, -3), App.Rotation())
sketch10.addGeometry([
    Part.LineSegment(Vector(27.2, -8.7, 0), Vector(19.9, -8.7, 0)),  # 0
    Part.ArcOfCircle(Part.Circle(Vector(19.9, -6.2, 0), Vector(0, 0, 1), 2.5), math.radians(180), math.radians(270)),  # 1
    Part.LineSegment(Vector(17.4, -6.2, 0), Vector(17.4, 6.2, 0)),  # 2
    Part.ArcOfCircle(Part.Circle(Vector(19.9, 6.2, 0), Vector(0, 0, 1), 2.5), math.radians(90), math.radians(180)),  # 3
    Part.LineSegment(Vector(19.9, 8.7, 0), Vector(27.2, 8.7, 0)),  # 4
    Part.ArcOfCircle(Part.Circle(Vector(27.2, 6.2, 0), Vector(0, 0, 1), 2.5), math.radians(0), math.radians(90)),  # 5
    Part.LineSegment(Vector(29.7, 6.2, 0), Vector(29.7, -6.2, 0)),  # 6
    Part.ArcOfCircle(Part.Circle(Vector(27.2, -6.2, 0), Vector(0, 0, 1), 2.5), math.radians(-90), math.radians(0)),  # 7
    Part.ArcOfCircle(Part.Circle(Vector(19.9, 6.2, 0), Vector(0, 0, 1), 1.5), math.radians(90), math.radians(180)),  # 8
    Part.LineSegment(Vector(18.4, 6.2, 0), Vector(18.4, -6.2, 0)),  # 9
    Part.ArcOfCircle(Part.Circle(Vector(19.9, -6.2, 0), Vector(0, 0, 1), 1.5), math.radians(180), math.radians(270)),  # 10
    Part.LineSegment(Vector(19.9, -7.7, 0), Vector(27.2, -7.7, 0)),  # 11
    Part.ArcOfCircle(Part.Circle(Vector(27.2, -6.2, 0), Vector(0, 0, 1), 1.5), math.radians(-90), math.radians(0)),  # 12
    Part.LineSegment(Vector(28.7, -6.2, 0), Vector(28.7, 6.2, 0)),  # 13
    Part.ArcOfCircle(Part.Circle(Vector(27.2, 6.2, 0), Vector(0, 0, 1), 1.5), math.radians(0), math.radians(90)),  # 14
    Part.LineSegment(Vector(27.2, 7.7, 0), Vector(19.9, 7.7, 0)),  # 15
], False)
sketch10.addConstraint([
    Sketcher.Constraint("Tangent", 0, 2, 1, 2),
    Sketcher.Constraint("Tangent", 1, 1, 2, 1),
    Sketcher.Constraint("Tangent", 2, 2, 3, 2),
    Sketcher.Constraint("Tangent", 3, 1, 4, 1),
    Sketcher.Constraint("Tangent", 4, 2, 5, 2),
    Sketcher.Constraint("Tangent", 5, 1, 6, 1),
    Sketcher.Constraint("Tangent", 6, 2, 7, 2),
    Sketcher.Constraint("Tangent", 7, 1, 0, 1),
    Sketcher.Constraint("Tangent", 8, 2, 9, 1),
    Sketcher.Constraint("Tangent", 9, 2, 10, 1),
    Sketcher.Constraint("Tangent", 10, 2, 11, 1),
    Sketcher.Constraint("Tangent", 11, 2, 12, 1),
    Sketcher.Constraint("Tangent", 12, 2, 13, 1),
    Sketcher.Constraint("Tangent", 13, 2, 14, 1),
    Sketcher.Constraint("Tangent", 14, 2, 15, 1),
    Sketcher.Constraint("Tangent", 15, 2, 8, 1),
    Sketcher.Constraint("Horizontal", 0),
    Sketcher.Constraint("Vertical", 2),
    Sketcher.Constraint("Horizontal", 4),
    Sketcher.Constraint("Vertical", 6),
    Sketcher.Constraint("Vertical", 9),
    Sketcher.Constraint("Horizontal", 11),
    Sketcher.Constraint("Vertical", 13),
    Sketcher.Constraint("Horizontal", 15),
    Sketcher.Constraint("Coincident", 8, 3, 3, 3),
    Sketcher.Constraint("Coincident", 10, 3, 1, 3),
    Sketcher.Constraint("Coincident", 12, 3, 7, 3),
    Sketcher.Constraint("Equal", 1, 3),
    Sketcher.Constraint("Equal", 3, 5),
    Sketcher.Constraint("Equal", 5, 7),
    Sketcher.Constraint("Equal", 12, 14),
    Sketcher.Constraint("Radius", 1, 2.5),
    Sketcher.Constraint("Radius", 8, 1.5),
    Sketcher.Constraint("DistanceX", 0, 2, 0, 1, 7.3),
    Sketcher.Constraint("DistanceY", 2, 1, 2, 2, 12.3),
    Sketcher.Constraint("DistanceY", 1, 3, -1, 1, 6.15),
    Sketcher.Constraint("DistanceX", -1, 1, 1, 3, 19.925),
])
pocket6 = body.newObject("PartDesign::Pocket", "Pocket005")
pocket6.Profile = sketch10
pocket6.Length = 2
pocket6.Reversed = True

# Sketch on XZ plane
sketch11 = body.newObject("Sketcher::SketchObject", "Sketch010")
sketch11.AttachmentSupport = (doc.getObject("XZ_Plane"), [""])
sketch11.MapMode = "FlatFace"
sketch11.AttachmentOffset = App.Placement(Vector(0, 0, -3), App.Rotation())
sketch11.addGeometry([
    Part.LineSegment(Vector(-10, -22, 0), Vector(-10, -16, 0)),
    Part.LineSegment(Vector(-10, -16, 0), Vector(10, -16, 0)),
    Part.LineSegment(Vector(10, -16, 0), Vector(10, -22, 0)),
    Part.LineSegment(Vector(10, -22, 0), Vector(-10, -22, 0)),
], False)
sketch11.addConstraint([
    Sketcher.Constraint("Coincident", 0, 2, 1, 1),
    Sketcher.Constraint("Coincident", 1, 2, 2, 1),
    Sketcher.Constraint("Coincident", 2, 2, 3, 1),
    Sketcher.Constraint("Coincident", 3, 2, 0, 1),
    Sketcher.Constraint("Vertical", 0),
    Sketcher.Constraint("Horizontal", 1),
    Sketcher.Constraint("Vertical", 2),
    Sketcher.Constraint("Horizontal", 3),
    Sketcher.Constraint("DistanceY", 0, 1, 0, 2, 6.0),
    Sketcher.Constraint("DistanceX", 1, 1, 1, 2, 19.7),
    Sketcher.Constraint("DistanceX", 0, 2, -1, 1, 9.85),
    Sketcher.Constraint("DistanceY", 0, 2, -1, 1, 16.05),
])
pocket7 = body.newObject("PartDesign::Pocket", "Pocket006")
pocket7.Profile = sketch11
pocket7.Length = 2
pocket7.Reversed = True

# Sketch on XZ plane
sketch12 = body.newObject("Sketcher::SketchObject", "Sketch011")
sketch12.AttachmentSupport = (doc.getObject("XZ_Plane"), [""])
sketch12.MapMode = "FlatFace"
sketch12.AttachmentOffset = App.Placement(Vector(0, 0, -1), App.Rotation())
sketch12.addGeometry([
    Part.LineSegment(Vector(-3.5, -20.7, 0), Vector(-3.5, -17.4, 0)),
    Part.LineSegment(Vector(-3.5, -17.4, 0), Vector(3.5, -17.4, 0)),
    Part.LineSegment(Vector(3.5, -17.4, 0), Vector(3.5, -20.7, 0)),
    Part.LineSegment(Vector(3.5, -20.7, 0), Vector(-3.5, -20.7, 0)),
], False)
sketch12.addConstraint([
    Sketcher.Constraint("Coincident", 0, 2, 1, 1),
    Sketcher.Constraint("Coincident", 1, 2, 2, 1),
    Sketcher.Constraint("Coincident", 2, 2, 3, 1),
    Sketcher.Constraint("Coincident", 3, 2, 0, 1),
    Sketcher.Constraint("Vertical", 0),
    Sketcher.Constraint("Horizontal", 1),
    Sketcher.Constraint("Vertical", 2),
    Sketcher.Constraint("Horizontal", 3),
    Sketcher.Constraint("DistanceX", 1, 1, 1, 2, 7.0),
    Sketcher.Constraint("DistanceY", 0, 1, 0, 2, 3.3),
    Sketcher.Constraint("DistanceX", 0, 2, -1, 1, 3.5),
    Sketcher.Constraint("DistanceY", 0, 2, -1, 1, 17.4),
])
pocket8 = body.newObject("PartDesign::Pocket", "Pocket007")
pocket8.Profile = sketch12
pocket8.Type = "ThroughAll"
pocket8.Reversed = True
doc.recompute()

chamfer = body.newObject("PartDesign::Chamfer", "Chamfer")
chamfer.Base = (pocket8, edges_at(pocket8, [
    (0, 0, 12.3),
    (-6.75, 0, 11.1),
    (-10.35, 0, 9.9),
    (13.95, 0, 0),
    (10.35, 0, 9.9),
    (6.75, 0, 11.1),
    (-13.95, 0, 0),
    (0, 0, -9.9),
    (28.725, 0, 0),
    (28.286, 0, 7.211),
    (23.575, 0, 7.65),
    (18.864, 0, 7.211),
    (18.425, 0, 0),
    (18.864, 0, -7.211),
    (23.575, 0, -7.65),
    (28.286, 0, -7.211),
]))
chamfer.Size = 0.5
doc.recompute()

fillet4 = body.newObject("PartDesign::Fillet", "Fillet003")
fillet4.Base = (chamfer, edges_at(chamfer, [
    (13.95, 2, -14.9),
    (-13.95, 2, -14.9),
    (-13.95, 2, 14.9),
    (13.95, 2, 14.9),
    (-9.85, 2, -22.05),
    (-9.85, 2, -16.05),
    (9.85, 2, -16.05),
    (9.85, 2, -22.05),
    (3.5, 0.5, -20.7),
    (3.5, 0.5, -17.4),
    (-3.5, 0.5, -17.4),
    (-3.5, 0.5, -20.7),
]))
fillet4.Radius = 0.7
doc.recompute()

fillet5 = body.newObject("PartDesign::Fillet", "Fillet004")
fillet5.Base = (fillet4, edges_at(fillet4, [
    (33.2, 12.25, -23.2),
    (33.2, 12.25, 23.2),
    (-33.2, 12.25, 23.2),
    (-33.2, 12.25, -23.2),
]))
fillet5.Radius = 0.8
doc.recompute()

chamfer2 = body.newObject("PartDesign::Chamfer", "Chamfer001")
chamfer2.Base = (fillet5, edges_at(fillet5, [
    (-35.2, 16.5, 0),
    (0, 16.5, -25.2),
    (35.2, 16.5, 0),
    (0, 16.5, 25.2),
    (34.38, 16.5, -24.38),
    (34.38, 16.5, 24.38),
    (-34.38, 16.5, 24.38),
    (-34.38, 16.5, -24.38),
]))
chamfer2.Size = 1

# Sketch on XZ plane
sketch13 = body.newObject("Sketcher::SketchObject", "Sketch012")
sketch13.AttachmentSupport = (doc.getObject("XZ_Plane"), [""])
sketch13.MapMode = "FlatFace"
sketch13.addGeometry([
    Part.Circle(Vector(-29, -18.5, 0), Vector(0, 0, 1), 1.7),  # 0
    Part.Circle(Vector(0, 0, 0), Vector(0, 0, 1), 1.7),  # 1
    Part.Circle(Vector(-29, 18.5, 0), Vector(0, 0, 1), 1.7),  # 2
    Part.Circle(Vector(29, 18.5, 0), Vector(0, 0, 1), 1.7),  # 3
    Part.Circle(Vector(29, -18.5, 0), Vector(0, 0, 1), 1.7),  # 4
], False)
sketch13.addConstraint([
    Sketcher.Constraint("Coincident", 1, 3, -1, 1),
    Sketcher.Constraint("Equal", 0, 1),
    Sketcher.Constraint("Equal", 1, 2),
    Sketcher.Constraint("Equal", 2, 3),
    Sketcher.Constraint("Equal", 3, 4),
    Sketcher.Constraint("Symmetric", 0, 3, 3, 3, -1, 1),
    Sketcher.Constraint("Symmetric", 2, 3, 4, 3, -1, 1),
    Sketcher.Constraint("Symmetric", 2, 3, 3, 3, -2),
    Sketcher.Constraint("Diameter", 0, 3.4),
    Sketcher.Constraint("DistanceX", 0, 3, -1, 1, 29.0),
    Sketcher.Constraint("DistanceY", 0, 3, 2, 3, 37.0),
])
doc.recompute()
hole = body.newObject("PartDesign::Hole", "Hole")
hole.Profile = sketch13
hole.ThreadType = "None"
hole.Diameter = 3.4
hole.DepthType = "ThroughAll"
hole.HoleCutType = "Counterbore"
hole.HoleCutDiameter = 5.7
hole.HoleCutDepth = 3.1

doc.recompute()
